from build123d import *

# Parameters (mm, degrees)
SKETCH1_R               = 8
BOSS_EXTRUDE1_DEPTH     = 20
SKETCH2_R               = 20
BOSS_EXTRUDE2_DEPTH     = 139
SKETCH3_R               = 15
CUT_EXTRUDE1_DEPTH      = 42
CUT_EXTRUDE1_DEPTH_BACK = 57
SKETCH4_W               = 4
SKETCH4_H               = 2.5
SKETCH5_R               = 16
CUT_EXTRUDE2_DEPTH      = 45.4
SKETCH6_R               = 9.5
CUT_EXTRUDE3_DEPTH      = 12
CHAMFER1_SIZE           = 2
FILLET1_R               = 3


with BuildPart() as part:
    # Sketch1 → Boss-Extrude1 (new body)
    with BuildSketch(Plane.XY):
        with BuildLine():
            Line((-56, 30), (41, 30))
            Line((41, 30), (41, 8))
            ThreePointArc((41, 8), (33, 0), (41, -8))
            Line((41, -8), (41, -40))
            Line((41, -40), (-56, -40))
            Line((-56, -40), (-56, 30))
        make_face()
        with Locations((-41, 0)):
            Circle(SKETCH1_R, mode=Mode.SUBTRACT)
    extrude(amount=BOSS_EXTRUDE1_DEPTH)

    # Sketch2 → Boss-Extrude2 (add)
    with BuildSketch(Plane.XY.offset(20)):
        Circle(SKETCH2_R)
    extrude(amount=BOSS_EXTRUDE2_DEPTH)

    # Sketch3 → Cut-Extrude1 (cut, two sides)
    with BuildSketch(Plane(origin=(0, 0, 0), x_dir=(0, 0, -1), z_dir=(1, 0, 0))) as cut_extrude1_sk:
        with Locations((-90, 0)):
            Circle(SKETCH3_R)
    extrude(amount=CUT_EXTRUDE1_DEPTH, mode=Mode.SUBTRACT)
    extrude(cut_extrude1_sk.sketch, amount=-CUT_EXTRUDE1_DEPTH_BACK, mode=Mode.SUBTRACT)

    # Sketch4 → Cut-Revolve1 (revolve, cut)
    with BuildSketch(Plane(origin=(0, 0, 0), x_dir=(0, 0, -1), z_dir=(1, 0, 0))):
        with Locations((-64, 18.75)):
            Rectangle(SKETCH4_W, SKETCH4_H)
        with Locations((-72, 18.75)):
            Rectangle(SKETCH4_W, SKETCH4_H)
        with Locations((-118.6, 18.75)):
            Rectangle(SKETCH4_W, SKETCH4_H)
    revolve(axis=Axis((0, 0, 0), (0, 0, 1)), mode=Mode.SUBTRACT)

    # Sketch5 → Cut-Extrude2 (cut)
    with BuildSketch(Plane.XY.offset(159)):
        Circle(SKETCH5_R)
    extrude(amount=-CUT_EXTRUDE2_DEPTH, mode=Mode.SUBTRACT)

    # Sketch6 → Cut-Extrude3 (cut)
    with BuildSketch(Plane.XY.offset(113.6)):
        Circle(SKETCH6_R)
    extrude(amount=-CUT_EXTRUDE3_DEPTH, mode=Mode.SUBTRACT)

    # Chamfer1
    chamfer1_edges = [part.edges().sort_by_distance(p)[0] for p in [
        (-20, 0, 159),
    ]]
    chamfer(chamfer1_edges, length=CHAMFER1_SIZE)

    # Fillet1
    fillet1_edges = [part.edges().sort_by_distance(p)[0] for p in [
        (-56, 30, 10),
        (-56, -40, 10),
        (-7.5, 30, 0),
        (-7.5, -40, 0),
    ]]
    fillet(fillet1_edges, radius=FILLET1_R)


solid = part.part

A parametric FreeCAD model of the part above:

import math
import FreeCAD as App
import Part
import Sketcher

V = App.Vector


def edges_at(feature, points):
    """Names of the edges that pass closest to the given points."""
    edges = feature.Shape.Edges
    near = lambda p: min(range(len(edges)), key=lambda i: edges[i].distToShape(Part.Vertex(*p))[0])
    return sorted({f"Edge{near(p) + 1}" for p in points})


def add_polygon(sketch, points):
    """Adds a closed chain of lines whose ends are joined by coincident constraints."""
    first, n = sketch.GeometryCount, len(points)
    for a, b in zip(points, points[1:] + points[:1]):
        sketch.addGeometry(Part.LineSegment(App.Vector(*a, 0), App.Vector(*b, 0)), False)
    for i in range(n):
        sketch.addConstraint(Sketcher.Constraint("Coincident", first + i, 2, first + (i + 1) % n, 1))

doc = App.newDocument("Part")
params = doc.addObject("Spreadsheet::Sheet", "Params")
for row, (alias, value) in enumerate([
    ("sketch1_diameter", "16 mm"),
    ("sketch1_width", "97 mm"),
    ("sketch1_height", "70 mm"),
    ("sketch1_height2", "32 mm"),
    ("pad1_length", "20 mm"),
    ("sketch2_diameter", "40 mm"),
    ("pad2_length", "139 mm"),
    ("sketch3_diameter", "30 mm"),
    ("sketch4_height", "4 mm"),
    ("sketch4_width", "2.5 mm"),
    ("groove_angle", "360 deg"),
    ("sketch5_diameter", "32 mm"),
    ("pocket2_length", "45.4 mm"),
    ("sketch6_diameter", "19 mm"),
    ("pocket3_length", "12 mm"),
    ("chamfer_size", "2 mm"),
    ("fillet_radius", "3 mm"),
], start=1):
    params.set(f"A{row}", alias)
    params.set(f"B{row}", "=" + value)
    params.setAlias(f"B{row}", alias)

body = doc.addObject("PartDesign::Body", "Body")

# Sketch on XY plane
sketch1 = body.newObject("Sketcher::SketchObject", "Sketch")
sketch1.AttachmentSupport = (doc.getObject("XY_Plane"), [""])
sketch1.MapMode = "FlatFace"
sketch1.addGeometry([
    Part.LineSegment(V(41, 30, 0), V(-56, 30, 0)),  # 0
    Part.LineSegment(V(-56, 30, 0), V(-56, -40, 0)),  # 1
    Part.LineSegment(V(-56, -40, 0), V(41, -40, 0)),  # 2
    Part.LineSegment(V(41, -40, 0), V(41, -8, 0)),  # 3
    Part.ArcOfCircle(Part.Circle(V(41, 0, 0), V(0, 0, 1), 8), math.radians(90), math.radians(270)),  # 4
    Part.LineSegment(V(41, 8, 0), V(41, 30, 0)),  # 5
    Part.Circle(V(-41, 0, 0), V(0, 0, 1), 8),  # 6
], False)
sketch1.addConstraint([
    Sketcher.Constraint("Coincident", 0, 2, 1, 1),
    Sketcher.Constraint("Coincident", 1, 2, 2, 1),
    Sketcher.Constraint("Coincident", 2, 2, 3, 1),
    Sketcher.Constraint("Coincident", 3, 2, 4, 2),
    Sketcher.Constraint("Coincident", 4, 1, 5, 1),
    Sketcher.Constraint("Coincident", 5, 2, 0, 1),
    Sketcher.Constraint("Horizontal", 0),
    Sketcher.Constraint("Vertical", 1),
    Sketcher.Constraint("Horizontal", 2),
    Sketcher.Constraint("Vertical", 3),
    Sketcher.Constraint("Vertical", 5),
    Sketcher.Constraint("Equal", 4, 6),
    Sketcher.Constraint("Symmetric", 4, 3, 6, 3, -1, 1),
    Sketcher.Constraint("Symmetric", 3, 2, 4, 1, -1),
    Sketcher.Constraint("Vertical", 4, 3, 2, 2),
    Sketcher.Constraint("Diameter", 6, 16.0),
    Sketcher.Constraint("DistanceX", 0, 2, 0, 1, 97.0),
    Sketcher.Constraint("DistanceY", 1, 2, 1, 1, 70.0),
    Sketcher.Constraint("DistanceY", 3, 1, 3, 2, 32.0),
    Sketcher.Constraint("DistanceX", -1, 1, 4, 3, 41.0),
])
sketch1.setExpression("Constraints[15]", "Params.sketch1_diameter")
sketch1.setExpression("Constraints[16]", "Params.sketch1_width")
sketch1.setExpression("Constraints[17]", "Params.sketch1_height")
sketch1.setExpression("Constraints[18]", "Params.sketch1_height2")
pad1 = body.newObject("PartDesign::Pad", "Pad")
pad1.Profile = sketch1
pad1.setExpression("Length", "Params.pad1_length")

# Sketch on XY plane
sketch2 = body.newObject("Sketcher::SketchObject", "Sketch001")
sketch2.AttachmentSupport = (doc.getObject("XY_Plane"), [""])
sketch2.MapMode = "FlatFace"
sketch2.AttachmentOffset = App.Placement(V(0, 0, 20), App.Rotation())
sketch2.addGeometry(Part.Circle(V(0, 0, 0), V(0, 0, 1), 20), False)
sketch2.addConstraint([
    Sketcher.Constraint("Coincident", 0, 3, -1, 1),
    Sketcher.Constraint("Diameter", 0, 40.0),
])
sketch2.setExpression("Constraints[1]", "Params.sketch2_diameter")
pad2 = body.newObject("PartDesign::Pad", "Pad001")
pad2.Profile = sketch2
pad2.setExpression("Length", "Params.pad2_length")

# Sketch on YZ plane
sketch3 = body.newObject("Sketcher::SketchObject", "Sketch002")
sketch3.AttachmentSupport = (doc.getObject("YZ_Plane"), [""])
sketch3.MapMode = "FlatFace"
sketch3.addGeometry(Part.Circle(V(0, 90, 0), V(0, 0, 1), 15), False)
sketch3.addConstraint([
    Sketcher.Constraint("PointOnObject", 0, 3, -2),
    Sketcher.Constraint("Diameter", 0, 30.0),
    Sketcher.Constraint("DistanceY", -1, 1, 0, 3, 90.0),
])
sketch3.setExpression("Constraints[1]", "Params.sketch3_diameter")
pocket1 = body.newObject("PartDesign::Pocket", "Pocket")
pocket1.Profile = sketch3
pocket1.Type = "ThroughAll"
pocket1.Midplane = True

# Sketch on YZ plane
sketch4 = body.newObject("Sketcher::SketchObject", "Sketch003")
sketch4.AttachmentSupport = (doc.getObject("YZ_Plane"), [""])
sketch4.MapMode = "FlatFace"
add_polygon(sketch4, [(20, 66), (17.5, 66), (17.5, 62), (20, 62)])  # lines 0-3
add_polygon(sketch4, [(20, 74), (17.5, 74), (17.5, 70), (20, 70)])  # lines 4-7
add_polygon(sketch4, [(20, 120.6), (17.5, 120.6), (17.5, 116.6), (20, 116.6)])  # lines 8-11
sketch4.addConstraint([
    Sketcher.Constraint("Horizontal", 0),
    Sketcher.Constraint("Vertical", 1),
    Sketcher.Constraint("Horizontal", 2),
    Sketcher.Constraint("Vertical", 3),
    Sketcher.Constraint("Horizontal", 4),
    Sketcher.Constraint("Vertical", 5),
    Sketcher.Constraint("Horizontal", 6),
    Sketcher.Constraint("Vertical", 7),
    Sketcher.Constraint("Horizontal", 8),
    Sketcher.Constraint("Vertical", 9),
    Sketcher.Constraint("Horizontal", 10),
    Sketcher.Constraint("Vertical", 11),
    Sketcher.Constraint("Vertical", 1, 2, 4, 2),
    Sketcher.Constraint("Vertical", 3, 2, 6, 2),
    Sketcher.Constraint("Vertical", 5, 2, 8, 2),
    Sketcher.Constraint("Vertical", 7, 2, 10, 2),
    Sketcher.Constraint("Equal", 3, 5),
    Sketcher.Constraint("Equal", 7, 9),
    Sketcher.Constraint("DistanceY", 1, 2, 1, 1, 4.0),
    Sketcher.Constraint("DistanceX", 0, 2, 0, 1, 2.5),
    Sketcher.Constraint("DistanceY", -1, 1, 0, 2, 66.0),
    Sketcher.Constraint("DistanceX", -1, 1, 2, 2, 20.0),
    Sketcher.Constraint("DistanceY", -1, 1, 4, 2, 74.0),
    Sketcher.Constraint("DistanceY", -1, 1, 8, 2, 120.6),
])
sketch4.setExpression("Constraints[30]", "Params.sketch4_height")
sketch4.setExpression("Constraints[31]", "Params.sketch4_width")
groove = body.newObject("PartDesign::Groove", "Groove")
groove.Profile = sketch4
groove.ReferenceAxis = (sketch4, ["V_Axis"])
groove.setExpression("Angle", "Params.groove_angle")

# Sketch on XY plane
sketch5 = body.newObject("Sketcher::SketchObject", "Sketch004")
sketch5.AttachmentSupport = (doc.getObject("XY_Plane"), [""])
sketch5.MapMode = "FlatFace"
sketch5.AttachmentOffset = App.Placement(V(0, 0, 159), App.Rotation())
sketch5.addGeometry(Part.Circle(V(0, 0, 0), V(0, 0, 1), 16), False)
sketch5.addConstraint([
    Sketcher.Constraint("Coincident", 0, 3, -1, 1),
    Sketcher.Constraint("Diameter", 0, 32.0),
])
sketch5.setExpression("Constraints[1]", "Params.sketch5_diameter")
pocket2 = body.newObject("PartDesign::Pocket", "Pocket001")
pocket2.Profile = sketch5
pocket2.setExpression("Length", "Params.pocket2_length")

# Sketch on XY plane
sketch6 = body.newObject("Sketcher::SketchObject", "Sketch005")
sketch6.AttachmentSupport = (doc.getObject("XY_Plane"), [""])
sketch6.MapMode = "FlatFace"
sketch6.AttachmentOffset = App.Placement(V(0, 0, 113.6), App.Rotation())
sketch6.addGeometry(Part.Circle(V(0, 0, 0), V(0, 0, 1), 9.5), False)
sketch6.addConstraint([
    Sketcher.Constraint("Coincident", 0, 3, -1, 1),
    Sketcher.Constraint("Diameter", 0, 19.0),
])
sketch6.setExpression("Constraints[1]", "Params.sketch6_diameter")
pocket3 = body.newObject("PartDesign::Pocket", "Pocket002")
pocket3.Profile = sketch6
pocket3.setExpression("Length", "Params.pocket3_length")
doc.recompute()

chamfer = body.newObject("PartDesign::Chamfer", "Chamfer")
chamfer.Base = (pocket3, edges_at(pocket3, [(-20, 0, 159)]))
chamfer.setExpression("Size", "Params.chamfer_size")
doc.recompute()

fillet = body.newObject("PartDesign::Fillet", "Fillet")
fillet.Base = (chamfer, edges_at(chamfer, [
    (-56, 30, 10),
    (-56, -40, 10),
    (-7.5, 30, 0),
    (-7.5, -40, 0),
]))
fillet.setExpression("Radius", "Params.fillet_radius")

doc.recompute()
